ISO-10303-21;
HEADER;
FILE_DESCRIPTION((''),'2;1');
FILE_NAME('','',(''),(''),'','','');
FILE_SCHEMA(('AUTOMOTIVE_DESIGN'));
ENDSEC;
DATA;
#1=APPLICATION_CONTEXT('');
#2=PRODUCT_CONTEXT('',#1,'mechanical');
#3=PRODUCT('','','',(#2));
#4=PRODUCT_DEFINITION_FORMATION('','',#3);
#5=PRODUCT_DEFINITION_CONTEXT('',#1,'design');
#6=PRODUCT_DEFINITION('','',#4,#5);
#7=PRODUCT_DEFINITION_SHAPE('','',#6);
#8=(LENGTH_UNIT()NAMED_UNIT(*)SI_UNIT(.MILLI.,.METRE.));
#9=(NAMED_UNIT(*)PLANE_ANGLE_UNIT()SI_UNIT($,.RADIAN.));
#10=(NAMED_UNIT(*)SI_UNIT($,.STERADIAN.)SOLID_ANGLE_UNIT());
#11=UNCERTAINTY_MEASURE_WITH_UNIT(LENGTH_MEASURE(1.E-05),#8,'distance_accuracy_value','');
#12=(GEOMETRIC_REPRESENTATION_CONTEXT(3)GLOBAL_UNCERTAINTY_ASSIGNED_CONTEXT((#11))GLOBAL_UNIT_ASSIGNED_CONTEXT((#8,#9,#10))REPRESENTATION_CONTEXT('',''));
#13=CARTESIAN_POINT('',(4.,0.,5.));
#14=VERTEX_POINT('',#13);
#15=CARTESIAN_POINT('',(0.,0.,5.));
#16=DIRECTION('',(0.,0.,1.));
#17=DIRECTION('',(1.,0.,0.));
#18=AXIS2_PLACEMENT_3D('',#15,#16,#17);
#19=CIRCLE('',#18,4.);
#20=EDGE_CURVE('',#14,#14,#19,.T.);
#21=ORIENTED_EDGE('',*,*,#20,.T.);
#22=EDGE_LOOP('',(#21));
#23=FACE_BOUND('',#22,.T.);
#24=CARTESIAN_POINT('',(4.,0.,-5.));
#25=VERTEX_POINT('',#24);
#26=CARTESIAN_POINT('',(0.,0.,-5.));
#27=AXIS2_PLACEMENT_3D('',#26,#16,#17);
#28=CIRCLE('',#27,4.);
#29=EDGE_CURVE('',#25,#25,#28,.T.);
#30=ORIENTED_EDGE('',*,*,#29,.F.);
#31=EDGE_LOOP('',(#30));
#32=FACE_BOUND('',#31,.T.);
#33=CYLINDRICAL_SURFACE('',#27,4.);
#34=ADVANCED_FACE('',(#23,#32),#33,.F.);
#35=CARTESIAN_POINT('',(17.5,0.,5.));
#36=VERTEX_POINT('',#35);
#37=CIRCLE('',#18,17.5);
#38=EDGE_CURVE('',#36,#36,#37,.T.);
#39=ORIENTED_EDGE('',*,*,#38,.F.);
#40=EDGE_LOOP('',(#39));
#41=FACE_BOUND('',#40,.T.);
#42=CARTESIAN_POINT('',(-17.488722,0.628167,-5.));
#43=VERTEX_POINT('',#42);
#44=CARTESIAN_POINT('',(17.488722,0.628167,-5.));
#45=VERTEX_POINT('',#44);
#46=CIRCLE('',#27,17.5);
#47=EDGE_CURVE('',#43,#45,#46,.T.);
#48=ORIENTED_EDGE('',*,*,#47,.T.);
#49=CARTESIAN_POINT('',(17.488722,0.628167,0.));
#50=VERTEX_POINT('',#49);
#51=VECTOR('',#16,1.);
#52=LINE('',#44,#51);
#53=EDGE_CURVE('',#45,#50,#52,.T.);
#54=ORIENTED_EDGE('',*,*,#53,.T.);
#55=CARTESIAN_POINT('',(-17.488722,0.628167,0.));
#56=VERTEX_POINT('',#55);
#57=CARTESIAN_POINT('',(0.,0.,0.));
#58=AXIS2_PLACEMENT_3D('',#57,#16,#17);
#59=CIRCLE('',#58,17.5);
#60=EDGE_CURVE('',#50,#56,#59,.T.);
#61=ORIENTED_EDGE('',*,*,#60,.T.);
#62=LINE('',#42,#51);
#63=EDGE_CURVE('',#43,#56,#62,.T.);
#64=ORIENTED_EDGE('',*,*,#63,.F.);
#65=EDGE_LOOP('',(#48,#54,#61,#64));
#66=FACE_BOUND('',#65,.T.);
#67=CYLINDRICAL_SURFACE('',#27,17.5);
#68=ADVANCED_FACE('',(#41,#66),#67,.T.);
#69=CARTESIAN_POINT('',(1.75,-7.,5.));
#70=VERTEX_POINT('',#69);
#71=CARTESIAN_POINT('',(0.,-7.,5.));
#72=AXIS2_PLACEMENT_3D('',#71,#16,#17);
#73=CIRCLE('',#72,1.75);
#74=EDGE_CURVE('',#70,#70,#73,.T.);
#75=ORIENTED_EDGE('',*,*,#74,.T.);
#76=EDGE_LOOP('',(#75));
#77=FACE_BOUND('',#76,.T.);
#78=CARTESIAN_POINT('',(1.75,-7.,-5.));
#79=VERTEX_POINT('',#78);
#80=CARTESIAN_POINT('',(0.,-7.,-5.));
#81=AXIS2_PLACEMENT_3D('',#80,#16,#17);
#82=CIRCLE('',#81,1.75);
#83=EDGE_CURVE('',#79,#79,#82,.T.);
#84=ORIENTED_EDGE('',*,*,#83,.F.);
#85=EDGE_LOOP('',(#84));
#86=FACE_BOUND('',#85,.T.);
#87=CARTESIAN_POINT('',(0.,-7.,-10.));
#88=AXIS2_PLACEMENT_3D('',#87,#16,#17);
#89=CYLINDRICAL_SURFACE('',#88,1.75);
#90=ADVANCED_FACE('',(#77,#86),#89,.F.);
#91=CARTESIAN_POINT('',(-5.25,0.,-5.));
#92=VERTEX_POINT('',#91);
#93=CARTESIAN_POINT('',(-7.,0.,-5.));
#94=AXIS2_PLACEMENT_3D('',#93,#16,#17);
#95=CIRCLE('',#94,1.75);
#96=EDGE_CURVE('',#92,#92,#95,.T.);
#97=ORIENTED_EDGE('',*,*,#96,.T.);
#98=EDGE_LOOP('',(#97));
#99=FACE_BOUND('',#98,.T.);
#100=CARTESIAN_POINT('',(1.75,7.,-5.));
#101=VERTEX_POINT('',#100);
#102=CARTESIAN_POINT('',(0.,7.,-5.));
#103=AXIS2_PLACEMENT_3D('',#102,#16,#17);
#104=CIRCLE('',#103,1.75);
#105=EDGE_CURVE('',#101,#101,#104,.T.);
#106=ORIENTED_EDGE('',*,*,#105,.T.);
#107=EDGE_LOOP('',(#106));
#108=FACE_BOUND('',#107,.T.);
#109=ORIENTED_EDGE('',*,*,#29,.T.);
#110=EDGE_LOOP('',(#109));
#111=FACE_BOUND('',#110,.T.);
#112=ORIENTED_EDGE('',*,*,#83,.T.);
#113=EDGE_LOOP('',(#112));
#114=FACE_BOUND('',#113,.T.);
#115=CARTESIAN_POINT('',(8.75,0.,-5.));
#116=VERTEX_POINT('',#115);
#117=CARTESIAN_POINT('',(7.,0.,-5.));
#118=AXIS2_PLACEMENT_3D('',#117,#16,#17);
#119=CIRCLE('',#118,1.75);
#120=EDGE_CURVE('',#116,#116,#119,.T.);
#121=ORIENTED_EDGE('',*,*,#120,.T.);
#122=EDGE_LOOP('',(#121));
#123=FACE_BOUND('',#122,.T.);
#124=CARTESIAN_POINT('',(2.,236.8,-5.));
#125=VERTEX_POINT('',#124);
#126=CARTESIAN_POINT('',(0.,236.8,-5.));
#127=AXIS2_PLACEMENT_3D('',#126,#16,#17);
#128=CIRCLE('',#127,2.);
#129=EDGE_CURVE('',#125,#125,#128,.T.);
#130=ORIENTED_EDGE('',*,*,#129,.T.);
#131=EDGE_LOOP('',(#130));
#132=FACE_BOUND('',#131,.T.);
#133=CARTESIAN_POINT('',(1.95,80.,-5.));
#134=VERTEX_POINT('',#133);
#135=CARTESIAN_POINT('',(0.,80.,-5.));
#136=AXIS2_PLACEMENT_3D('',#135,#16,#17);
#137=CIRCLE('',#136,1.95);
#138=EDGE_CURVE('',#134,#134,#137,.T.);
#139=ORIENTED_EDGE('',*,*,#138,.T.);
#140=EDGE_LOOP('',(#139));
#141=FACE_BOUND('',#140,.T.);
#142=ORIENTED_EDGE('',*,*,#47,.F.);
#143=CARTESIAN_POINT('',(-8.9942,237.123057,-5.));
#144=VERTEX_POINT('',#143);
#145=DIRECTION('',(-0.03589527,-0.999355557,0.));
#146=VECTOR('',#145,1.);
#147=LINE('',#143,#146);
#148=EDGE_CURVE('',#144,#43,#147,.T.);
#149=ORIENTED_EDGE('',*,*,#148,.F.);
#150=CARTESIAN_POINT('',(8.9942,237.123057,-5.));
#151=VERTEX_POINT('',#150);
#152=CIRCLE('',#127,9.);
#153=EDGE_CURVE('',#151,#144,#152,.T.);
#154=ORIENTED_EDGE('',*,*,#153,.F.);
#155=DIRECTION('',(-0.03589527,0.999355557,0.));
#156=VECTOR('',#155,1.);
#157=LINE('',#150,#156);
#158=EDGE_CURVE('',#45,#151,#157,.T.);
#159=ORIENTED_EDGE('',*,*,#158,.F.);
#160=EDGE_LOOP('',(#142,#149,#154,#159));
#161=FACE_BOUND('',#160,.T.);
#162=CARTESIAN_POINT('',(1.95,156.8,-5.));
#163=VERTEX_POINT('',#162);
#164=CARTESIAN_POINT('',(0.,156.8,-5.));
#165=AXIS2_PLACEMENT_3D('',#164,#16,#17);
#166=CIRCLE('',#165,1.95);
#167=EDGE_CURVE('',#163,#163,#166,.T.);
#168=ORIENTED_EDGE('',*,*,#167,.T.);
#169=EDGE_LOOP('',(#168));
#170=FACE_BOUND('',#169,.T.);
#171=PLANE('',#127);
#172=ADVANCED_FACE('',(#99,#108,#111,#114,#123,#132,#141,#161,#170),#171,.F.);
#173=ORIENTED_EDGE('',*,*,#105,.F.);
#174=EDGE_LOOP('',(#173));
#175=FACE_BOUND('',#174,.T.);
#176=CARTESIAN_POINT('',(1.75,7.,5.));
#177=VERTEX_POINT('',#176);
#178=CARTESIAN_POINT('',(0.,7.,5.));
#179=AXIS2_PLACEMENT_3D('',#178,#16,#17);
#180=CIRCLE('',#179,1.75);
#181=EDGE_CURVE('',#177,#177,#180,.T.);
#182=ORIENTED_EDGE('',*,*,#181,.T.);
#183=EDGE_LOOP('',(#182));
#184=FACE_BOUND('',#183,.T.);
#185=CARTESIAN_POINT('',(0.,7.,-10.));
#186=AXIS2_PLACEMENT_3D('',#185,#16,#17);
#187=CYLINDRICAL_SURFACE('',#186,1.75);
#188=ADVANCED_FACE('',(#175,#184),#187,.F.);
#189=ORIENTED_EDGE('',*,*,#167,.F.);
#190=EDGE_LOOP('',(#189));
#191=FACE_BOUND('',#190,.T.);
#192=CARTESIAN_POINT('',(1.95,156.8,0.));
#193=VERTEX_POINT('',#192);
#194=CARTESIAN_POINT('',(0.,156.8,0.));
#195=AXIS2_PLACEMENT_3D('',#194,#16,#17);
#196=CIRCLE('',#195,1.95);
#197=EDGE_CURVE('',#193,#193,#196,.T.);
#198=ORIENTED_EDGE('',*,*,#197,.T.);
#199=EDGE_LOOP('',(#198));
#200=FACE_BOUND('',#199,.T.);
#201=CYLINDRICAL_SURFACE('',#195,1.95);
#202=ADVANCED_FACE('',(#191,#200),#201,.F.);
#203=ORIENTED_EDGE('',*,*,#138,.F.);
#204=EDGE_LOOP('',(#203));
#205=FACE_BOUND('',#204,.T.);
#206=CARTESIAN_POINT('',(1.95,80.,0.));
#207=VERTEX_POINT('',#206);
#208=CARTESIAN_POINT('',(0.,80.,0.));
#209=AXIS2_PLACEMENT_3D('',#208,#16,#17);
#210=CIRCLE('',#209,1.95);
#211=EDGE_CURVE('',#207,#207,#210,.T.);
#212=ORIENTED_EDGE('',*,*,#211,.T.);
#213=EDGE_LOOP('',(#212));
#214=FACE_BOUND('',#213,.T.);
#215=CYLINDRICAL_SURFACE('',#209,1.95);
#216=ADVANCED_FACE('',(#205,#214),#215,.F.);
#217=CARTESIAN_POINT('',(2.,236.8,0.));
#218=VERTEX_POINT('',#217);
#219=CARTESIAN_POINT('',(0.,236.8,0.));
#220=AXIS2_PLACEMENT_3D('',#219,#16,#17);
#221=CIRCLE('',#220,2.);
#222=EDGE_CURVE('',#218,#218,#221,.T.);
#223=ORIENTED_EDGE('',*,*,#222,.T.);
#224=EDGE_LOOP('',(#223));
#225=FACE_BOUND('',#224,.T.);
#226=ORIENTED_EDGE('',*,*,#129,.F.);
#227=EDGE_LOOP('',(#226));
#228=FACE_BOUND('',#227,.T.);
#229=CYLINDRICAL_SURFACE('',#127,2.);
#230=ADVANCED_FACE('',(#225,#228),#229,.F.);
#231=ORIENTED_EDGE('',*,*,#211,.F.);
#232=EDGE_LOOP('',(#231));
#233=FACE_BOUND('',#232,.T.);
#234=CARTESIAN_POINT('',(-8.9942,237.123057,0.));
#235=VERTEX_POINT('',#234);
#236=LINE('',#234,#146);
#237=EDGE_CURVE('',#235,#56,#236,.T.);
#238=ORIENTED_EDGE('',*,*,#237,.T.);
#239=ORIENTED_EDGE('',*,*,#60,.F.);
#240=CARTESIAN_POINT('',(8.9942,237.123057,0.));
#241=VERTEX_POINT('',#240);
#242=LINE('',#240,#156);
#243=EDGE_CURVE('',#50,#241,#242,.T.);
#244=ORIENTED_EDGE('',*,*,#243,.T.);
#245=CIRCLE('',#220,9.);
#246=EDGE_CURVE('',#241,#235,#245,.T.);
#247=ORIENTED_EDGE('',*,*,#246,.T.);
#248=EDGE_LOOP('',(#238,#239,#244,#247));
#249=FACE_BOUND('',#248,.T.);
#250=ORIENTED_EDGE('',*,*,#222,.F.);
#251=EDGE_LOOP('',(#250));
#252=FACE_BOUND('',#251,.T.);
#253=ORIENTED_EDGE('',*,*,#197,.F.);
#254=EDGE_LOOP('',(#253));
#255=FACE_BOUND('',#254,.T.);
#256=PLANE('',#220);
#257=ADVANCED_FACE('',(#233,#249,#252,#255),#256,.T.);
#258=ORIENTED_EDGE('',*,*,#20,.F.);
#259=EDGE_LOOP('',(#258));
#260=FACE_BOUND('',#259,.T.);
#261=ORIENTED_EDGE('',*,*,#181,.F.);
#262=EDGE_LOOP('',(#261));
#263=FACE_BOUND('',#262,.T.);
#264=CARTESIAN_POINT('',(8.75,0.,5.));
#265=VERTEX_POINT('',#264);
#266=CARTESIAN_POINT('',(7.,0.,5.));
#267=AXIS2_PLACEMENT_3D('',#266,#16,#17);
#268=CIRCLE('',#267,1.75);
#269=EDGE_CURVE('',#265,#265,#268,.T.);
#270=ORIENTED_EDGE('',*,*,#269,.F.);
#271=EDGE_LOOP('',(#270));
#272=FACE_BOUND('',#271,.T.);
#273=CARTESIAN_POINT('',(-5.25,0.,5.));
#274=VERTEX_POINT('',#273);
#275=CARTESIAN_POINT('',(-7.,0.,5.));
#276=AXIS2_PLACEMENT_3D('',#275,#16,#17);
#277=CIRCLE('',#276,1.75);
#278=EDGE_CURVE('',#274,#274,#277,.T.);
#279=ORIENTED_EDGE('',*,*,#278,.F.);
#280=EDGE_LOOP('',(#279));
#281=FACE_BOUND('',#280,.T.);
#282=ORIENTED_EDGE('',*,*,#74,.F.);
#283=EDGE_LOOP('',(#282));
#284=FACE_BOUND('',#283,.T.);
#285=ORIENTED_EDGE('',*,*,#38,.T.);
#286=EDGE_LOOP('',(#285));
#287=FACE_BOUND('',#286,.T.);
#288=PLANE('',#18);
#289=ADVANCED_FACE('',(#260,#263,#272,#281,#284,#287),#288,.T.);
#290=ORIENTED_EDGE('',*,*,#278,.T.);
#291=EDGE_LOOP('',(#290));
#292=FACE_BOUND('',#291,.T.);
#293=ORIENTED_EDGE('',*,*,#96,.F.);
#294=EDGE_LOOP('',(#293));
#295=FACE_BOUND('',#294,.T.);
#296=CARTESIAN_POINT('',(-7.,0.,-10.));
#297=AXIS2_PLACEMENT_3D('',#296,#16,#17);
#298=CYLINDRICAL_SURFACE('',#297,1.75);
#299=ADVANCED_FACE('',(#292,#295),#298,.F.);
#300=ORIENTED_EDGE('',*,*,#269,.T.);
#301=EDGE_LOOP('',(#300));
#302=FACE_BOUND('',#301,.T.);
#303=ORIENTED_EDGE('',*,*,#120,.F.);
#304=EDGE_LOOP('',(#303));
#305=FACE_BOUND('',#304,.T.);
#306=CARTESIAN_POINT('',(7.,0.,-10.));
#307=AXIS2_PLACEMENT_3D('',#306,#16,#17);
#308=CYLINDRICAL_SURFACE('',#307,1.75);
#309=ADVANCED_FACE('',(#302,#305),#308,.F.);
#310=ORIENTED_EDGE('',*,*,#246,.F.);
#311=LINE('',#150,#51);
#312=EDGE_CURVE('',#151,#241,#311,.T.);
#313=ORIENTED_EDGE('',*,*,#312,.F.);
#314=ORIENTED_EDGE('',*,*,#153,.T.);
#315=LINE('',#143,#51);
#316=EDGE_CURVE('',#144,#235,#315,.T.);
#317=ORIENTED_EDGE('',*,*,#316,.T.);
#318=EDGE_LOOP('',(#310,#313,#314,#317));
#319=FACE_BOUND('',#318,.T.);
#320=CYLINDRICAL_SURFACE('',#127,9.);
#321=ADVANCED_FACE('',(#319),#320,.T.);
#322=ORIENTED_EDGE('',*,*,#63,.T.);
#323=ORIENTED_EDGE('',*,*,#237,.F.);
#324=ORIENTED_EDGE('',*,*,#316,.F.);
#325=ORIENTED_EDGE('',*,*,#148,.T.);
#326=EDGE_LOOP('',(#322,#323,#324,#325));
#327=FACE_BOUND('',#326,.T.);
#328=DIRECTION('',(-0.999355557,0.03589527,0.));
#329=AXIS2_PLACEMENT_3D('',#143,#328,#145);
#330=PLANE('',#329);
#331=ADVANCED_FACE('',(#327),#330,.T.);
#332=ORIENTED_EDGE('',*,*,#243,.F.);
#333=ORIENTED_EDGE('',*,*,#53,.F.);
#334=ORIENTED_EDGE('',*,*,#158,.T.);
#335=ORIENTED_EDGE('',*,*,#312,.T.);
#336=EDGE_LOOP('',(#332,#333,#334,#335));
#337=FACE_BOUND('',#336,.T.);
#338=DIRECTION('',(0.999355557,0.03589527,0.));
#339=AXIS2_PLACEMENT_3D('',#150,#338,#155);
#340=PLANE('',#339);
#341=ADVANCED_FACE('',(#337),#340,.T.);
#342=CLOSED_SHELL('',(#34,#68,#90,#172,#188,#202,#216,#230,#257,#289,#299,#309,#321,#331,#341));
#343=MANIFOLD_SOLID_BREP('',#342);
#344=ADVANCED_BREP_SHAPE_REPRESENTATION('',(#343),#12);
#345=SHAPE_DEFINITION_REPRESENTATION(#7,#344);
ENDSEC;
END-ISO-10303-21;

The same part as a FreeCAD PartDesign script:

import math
import FreeCAD as App
import Part
import Sketcher
from FreeCAD import Vector
Q = App.Units.Quantity

doc = App.newDocument("Part")
body = doc.addObject("PartDesign::Body", "Body")

sketch1 = body.newObject("Sketcher::SketchObject", "Sketch")
sketch1.AttachmentSupport = (doc.getObject("XY_Plane"), [""])
sketch1.MapMode = "FlatFace"
sketch1.addGeometry([
    Part.LineSegment(Vector(17.5, 0.6, 0), Vector(9, 237.1, 0)),
    Part.ArcOfCircle(Part.Circle(Vector(0, 236.8, 0), Vector(0, 0, 1), 9), math.radians(2), math.radians(178)),
    Part.LineSegment(Vector(-9, 237.1, 0), Vector(-17.5, 0.6, 0)),
    Part.ArcOfCircle(Part.Circle(Vector(0, 0, 0), Vector(0, 0, 1), 17.5), math.radians(178), math.radians(362)),
    Part.Circle(Vector(0, 0, 0), Vector(0, 0, 1), 4),
    Part.Circle(Vector(0, 236.8, 0), Vector(0, 0, 1), 2),
], False)
sketch1.addConstraint([
    Sketcher.Constraint("Tangent", 0, 2, 1, 1),
    Sketcher.Constraint("Tangent", 1, 2, 2, 1),
    Sketcher.Constraint("Tangent", 2, 2, 3, 1),
    Sketcher.Constraint("Tangent", 3, 2, 0, 1),
    Sketcher.Constraint("Coincident", 3, 3, -1, 1),
    Sketcher.Constraint("Coincident", 4, 3, -1, 1),
    Sketcher.Constraint("Coincident", 5, 3, 1, 3),
    Sketcher.Constraint("PointOnObject", 1, 3, -2),
    Sketcher.Constraint("Diameter", 4, Q("8 mm")),
    Sketcher.Constraint("Diameter", 5, Q("4 mm")),
    Sketcher.Constraint("Radius", 1, Q("9 mm")),
    Sketcher.Constraint("Radius", 3, Q("17.5 mm")),
    Sketcher.Constraint("DistanceY", -1, 1, 1, 3, Q("236.8 mm")),
])
pad1 = body.newObject("PartDesign::Pad", "Pad")
pad1.Profile = sketch1
pad1.Length = 5
pad1.Reversed = True

sketch2 = body.newObject("Sketcher::SketchObject", "Sketch001")
sketch2.AttachmentSupport = (doc.getObject("XY_Plane"), [""])
sketch2.MapMode = "FlatFace"
sketch2.addGeometry([
    Part.Circle(Vector(0, 156.8, 0), Vector(0, 0, 1), 1.9),
    Part.Circle(Vector(0, 80, 0), Vector(0, 0, 1), 1.9),
], False)
sketch2.addConstraint([
    Sketcher.Constraint("Equal", 0, 1),
    Sketcher.Constraint("PointOnObject", 0, 3, -2),
    Sketcher.Constraint("PointOnObject", 1, 3, -2),
    Sketcher.Constraint("Diameter", 0, Q("3.9 mm")),
    Sketcher.Constraint("DistanceY", -1, 1, 1, 3, Q("80 mm")),
    Sketcher.Constraint("DistanceY", -1, 1, 0, 3, Q("156.8 mm")),
])
doc.recompute()
hole = body.newObject("PartDesign::Hole", "Hole")
hole.Profile = sketch2
hole.ThreadType = "None"
hole.Diameter = 3.9
hole.DepthType = "Dimension"
hole.Depth = 10
hole.DrillPoint = "Angled"
hole.DrillPointAngle = 118

sketch3 = body.newObject("Sketcher::SketchObject", "Sketch002")
sketch3.AttachmentSupport = (doc.getObject("XY_Plane"), [""])
sketch3.MapMode = "FlatFace"
sketch3.addGeometry([
    Part.Circle(Vector(7, 0, 0), Vector(0, 0, 1), 1.8),
    Part.Circle(Vector(0, 7, 0), Vector(0, 0, 1), 1.8),
    Part.Circle(Vector(0, -7, 0), Vector(0, 0, 1), 1.8),
    Part.Circle(Vector(-7, 0, 0), Vector(0, 0, 1), 1.8),
], False)
sketch3.addConstraint([
    Sketcher.Constraint("Equal", 0, 1),
    Sketcher.Constraint("Equal", 1, 2),
    Sketcher.Constraint("Equal", 2, 3),
    Sketcher.Constraint("Symmetric", 1, 3, 2, 3, -1, 1),
    Sketcher.Constraint("Symmetric", 0, 3, 3, 3, -1, 1),
    Sketcher.Constraint("PointOnObject", 0, 3, -1),
    Sketcher.Constraint("PointOnObject", 1, 3, -2),
    Sketcher.Constraint("Diameter", 0, Q("3.5 mm")),
    Sketcher.Constraint("DistanceX", -1, 1, 0, 3, Q("7 mm")),
    Sketcher.Constraint("DistanceY", -1, 1, 1, 3, Q("7 mm")),
])
pocket1 = body.newObject("PartDesign::Pocket", "Pocket")
pocket1.Profile = sketch3
pocket1.Length = 10

sketch4 = body.newObject("Sketcher::SketchObject", "Sketch003")
sketch4.AttachmentSupport = (doc.getObject("XY_Plane"), [""])
sketch4.MapMode = "FlatFace"
sketch4.AttachmentOffset = App.Placement(Vector(0, 0, 5), App.Rotation())
sketch4.addGeometry([
    Part.Circle(Vector(0, 0, 0), Vector(0, 0, 1), 17.5),
    Part.Circle(Vector(-7, 0, 0), Vector(0, 0, 1), 1.8),
    Part.Circle(Vector(0, -7, 0), Vector(0, 0, 1), 1.8),
    Part.Circle(Vector(0, 0, 0), Vector(0, 0, 1), 4),
    Part.Circle(Vector(7, 0, 0), Vector(0, 0, 1), 1.8),
    Part.Circle(Vector(0, 7, 0), Vector(0, 0, 1), 1.8),
], False)
sketch4.addConstraint([
    Sketcher.Constraint("Coincident", 0, 3, -1, 1),
    Sketcher.Constraint("Coincident", 3, 3, -1, 1),
    Sketcher.Constraint("Equal", 1, 2),
    Sketcher.Constraint("Equal", 2, 4),
    Sketcher.Constraint("Equal", 4, 5),
    Sketcher.Constraint("Symmetric", 1, 3, 4, 3, -1, 1),
    Sketcher.Constraint("Symmetric", 2, 3, 5, 3, -1, 1),
    Sketcher.Constraint("PointOnObject", 1, 3, -1),
    Sketcher.Constraint("PointOnObject", 2, 3, -2),
    Sketcher.Constraint("Diameter", 0, Q("35 mm")),
    Sketcher.Constraint("Diameter", 3, Q("8 mm")),
    Sketcher.Constraint("Diameter", 1, Q("3.5 mm")),
    Sketcher.Constraint("DistanceX", 1, 3, -1, 1, Q("7 mm")),
    Sketcher.Constraint("DistanceY", 2, 3, -1, 1, Q("7 mm")),
])
pad2 = body.newObject("PartDesign::Pad", "Pad001")
pad2.Profile = sketch4
pad2.Length = 5
pad2.Reversed = True

doc.recompute()
